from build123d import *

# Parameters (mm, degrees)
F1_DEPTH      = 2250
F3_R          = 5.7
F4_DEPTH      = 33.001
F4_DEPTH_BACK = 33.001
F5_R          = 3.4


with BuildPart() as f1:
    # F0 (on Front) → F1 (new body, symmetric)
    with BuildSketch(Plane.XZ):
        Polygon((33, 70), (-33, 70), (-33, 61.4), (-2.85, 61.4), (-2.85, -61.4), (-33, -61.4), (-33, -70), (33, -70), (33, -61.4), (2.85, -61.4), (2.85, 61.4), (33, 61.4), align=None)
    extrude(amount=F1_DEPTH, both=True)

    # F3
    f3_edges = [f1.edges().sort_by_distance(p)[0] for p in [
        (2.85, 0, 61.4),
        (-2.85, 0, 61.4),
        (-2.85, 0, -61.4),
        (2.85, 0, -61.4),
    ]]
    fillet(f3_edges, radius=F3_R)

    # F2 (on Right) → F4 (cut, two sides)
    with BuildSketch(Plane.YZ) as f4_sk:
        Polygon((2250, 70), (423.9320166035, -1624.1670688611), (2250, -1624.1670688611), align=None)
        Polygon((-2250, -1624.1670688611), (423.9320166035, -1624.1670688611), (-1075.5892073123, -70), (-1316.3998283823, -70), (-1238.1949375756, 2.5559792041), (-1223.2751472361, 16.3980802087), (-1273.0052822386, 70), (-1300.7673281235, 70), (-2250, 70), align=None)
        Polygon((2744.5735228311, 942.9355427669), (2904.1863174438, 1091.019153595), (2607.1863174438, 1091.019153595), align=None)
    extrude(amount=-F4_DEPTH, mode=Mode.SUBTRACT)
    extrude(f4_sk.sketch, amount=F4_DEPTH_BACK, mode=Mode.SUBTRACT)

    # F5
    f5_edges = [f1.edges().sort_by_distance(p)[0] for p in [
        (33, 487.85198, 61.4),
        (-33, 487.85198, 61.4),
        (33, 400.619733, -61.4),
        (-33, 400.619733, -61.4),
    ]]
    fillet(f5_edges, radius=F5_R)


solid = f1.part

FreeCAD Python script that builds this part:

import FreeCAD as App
import Part
import Sketcher

V = App.Vector
Q = App.Units.Quantity


def edges_at(feature, points):
    """Names of the edges that pass closest to the given points."""
    edges = feature.Shape.Edges
    near = lambda p: min(range(len(edges)), key=lambda i: edges[i].distToShape(Part.Vertex(*p))[0])
    return sorted({f"Edge{near(p) + 1}" for p in points})


def add_polygon(sketch, points):
    """Adds a closed chain of lines whose ends are joined by coincident constraints."""
    first, n = sketch.GeometryCount, len(points)
    for a, b in zip(points, points[1:] + points[:1]):
        sketch.addGeometry(Part.LineSegment(App.Vector(*a, 0), App.Vector(*b, 0)), False)
    for i in range(n):
        sketch.addConstraint(Sketcher.Constraint("Coincident", first + i, 2, first + (i + 1) % n, 1))

doc = App.newDocument("Part")
body = doc.addObject("PartDesign::Body", "Body")

# Sketch on XZ plane
sketch1 = body.newObject("Sketcher::SketchObject", "Sketch")
sketch1.AttachmentSupport = (doc.getObject("XZ_Plane"), [""])
sketch1.MapMode = "FlatFace"
add_polygon(sketch1, [(33, 70), (-33, 70), (-33, 61), (-3, 61), (-3, -61), (-33, -61), (-33, -70), (33, -70), (33, -61), (3, -61), (3, 61), (33, 61)])  # lines 0-11
sketch1.addConstraint([
    Sketcher.Constraint("Horizontal", 0),
    Sketcher.Constraint("Vertical", 1),
    Sketcher.Constraint("Horizontal", 2),
    Sketcher.Constraint("Vertical", 3),
    Sketcher.Constraint("Horizontal", 4),
    Sketcher.Constraint("Vertical", 5),
    Sketcher.Constraint("Horizontal", 6),
    Sketcher.Constraint("Vertical", 7),
    Sketcher.Constraint("Horizontal", 8),
    Sketcher.Constraint("Vertical", 9),
    Sketcher.Constraint("Horizontal", 10),
    Sketcher.Constraint("Vertical", 11),
    Sketcher.Constraint("Symmetric", 0, 2, 6, 2, -1, 1),
    Sketcher.Constraint("Symmetric", 2, 2, 8, 2, -1, 1),
    Sketcher.Constraint("Symmetric", 4, 2, 10, 2, -1, 1),
    Sketcher.Constraint("Symmetric", 4, 2, 7, 2, -2),
    Sketcher.Constraint("DistanceX", 0, 2, 0, 1, Q("66 mm")),
    Sketcher.Constraint("DistanceY", 1, 2, 1, 1, Q("8.6 mm")),
    Sketcher.Constraint("DistanceY", 3, 2, 3, 1, Q("122.8 mm")),
    Sketcher.Constraint("DistanceX", 2, 1, 2, 2, Q("30.15 mm")),
])
pad1 = body.newObject("PartDesign::Pad", "Pad")
pad1.Profile = sketch1
pad1.Length = 4500
pad1.Midplane = True
doc.recompute()

fillet = body.newObject("PartDesign::Fillet", "Fillet")
fillet.Base = (pad1, edges_at(pad1, [
    (2.85, 0, 61.4),
    (-2.85, 0, 61.4),
    (-2.85, 0, -61.4),
    (2.85, 0, -61.4),
]))
fillet.Radius = 5.7

# Sketch on YZ plane
sketch2 = body.newObject("Sketcher::SketchObject", "Sketch001")
sketch2.AttachmentSupport = (doc.getObject("YZ_Plane"), [""])
sketch2.MapMode = "FlatFace"
add_polygon(sketch2, [(2250, 70), (424, -1624), (2250, -1624)])  # lines 0-2
add_polygon(sketch2, [(-2250, -1624), (424, -1624), (-1076, -70), (-1316, -70), (-1238, 3), (-1223, 16), (-1273, 70), (-2250, 70)])  # lines 3-10
add_polygon(sketch2, [(2745, 943), (2904, 1091), (2607, 1091)])  # lines 11-13
sketch2.addConstraint([
    Sketcher.Constraint("Horizontal", 1),
    Sketcher.Constraint("Vertical", 2),
    Sketcher.Constraint("Horizontal", 3),
    Sketcher.Constraint("Horizontal", 5),
    Sketcher.Constraint("Horizontal", 9),
    Sketcher.Constraint("Vertical", 10),
    Sketcher.Constraint("Horizontal", 12),
    Sketcher.Constraint("Coincident", 3, 2, 0, 2),
    Sketcher.Constraint("Symmetric", 2, 2, 9, 2, -2),
    Sketcher.Constraint("Parallel", 0, 6),
    Sketcher.Constraint("Parallel", 6, 7),
    Sketcher.Constraint("Perpendicular", 7, 8),
    Sketcher.Constraint("Perpendicular", 8, 11),
    Sketcher.Constraint("Perpendicular", 11, 13),
    Sketcher.Constraint("DistanceX", 12, 2, 12, 1, Q("297 mm")),
    Sketcher.Constraint("Distance", 13, Q("202 mm")),
    Sketcher.Constraint("DistanceX", -1, 1, 1, 2, Q("2250 mm")),
    Sketcher.Constraint("DistanceY", -1, 1, 2, 2, Q("70 mm")),
    Sketcher.Constraint("DistanceY", 4, 2, -1, 1, Q("70 mm")),
    Sketcher.Constraint("Distance", 7, Q("20.352 mm")),
    Sketcher.Constraint("DistanceX", 5, 2, 5, 1, Q("240.810621 mm")),
    Sketcher.Constraint("DistanceY", 2, 1, 2, 2, Q("1694.167069 mm")),
    Sketcher.Constraint("DistanceX", 8, 2, 0, 2, Q("1696.937299 mm")),
    Sketcher.Constraint("DistanceX", 0, 2, 11, 2, Q("2480.254301 mm")),
    Sketcher.Constraint("Distance", 6, Q("106.678841 mm")),
    Sketcher.Constraint("DistanceY", 1, 2, 13, 2, Q("2567.102612 mm")),
])
pocket1 = body.newObject("PartDesign::Pocket", "Pocket")
pocket1.Profile = sketch2
pocket1.Type = "ThroughAll"
pocket1.Midplane = True
doc.recompute()

fillet2 = body.newObject("PartDesign::Fillet", "Fillet001")
fillet2.Base = (pocket1, edges_at(pocket1, [
    (33, 487.852, 61.4),
    (-33, 487.852, 61.4),
    (33, 400.62, -61.4),
    (-33, 400.62, -61.4),
]))
fillet2.Radius = 3.4

doc.recompute()
